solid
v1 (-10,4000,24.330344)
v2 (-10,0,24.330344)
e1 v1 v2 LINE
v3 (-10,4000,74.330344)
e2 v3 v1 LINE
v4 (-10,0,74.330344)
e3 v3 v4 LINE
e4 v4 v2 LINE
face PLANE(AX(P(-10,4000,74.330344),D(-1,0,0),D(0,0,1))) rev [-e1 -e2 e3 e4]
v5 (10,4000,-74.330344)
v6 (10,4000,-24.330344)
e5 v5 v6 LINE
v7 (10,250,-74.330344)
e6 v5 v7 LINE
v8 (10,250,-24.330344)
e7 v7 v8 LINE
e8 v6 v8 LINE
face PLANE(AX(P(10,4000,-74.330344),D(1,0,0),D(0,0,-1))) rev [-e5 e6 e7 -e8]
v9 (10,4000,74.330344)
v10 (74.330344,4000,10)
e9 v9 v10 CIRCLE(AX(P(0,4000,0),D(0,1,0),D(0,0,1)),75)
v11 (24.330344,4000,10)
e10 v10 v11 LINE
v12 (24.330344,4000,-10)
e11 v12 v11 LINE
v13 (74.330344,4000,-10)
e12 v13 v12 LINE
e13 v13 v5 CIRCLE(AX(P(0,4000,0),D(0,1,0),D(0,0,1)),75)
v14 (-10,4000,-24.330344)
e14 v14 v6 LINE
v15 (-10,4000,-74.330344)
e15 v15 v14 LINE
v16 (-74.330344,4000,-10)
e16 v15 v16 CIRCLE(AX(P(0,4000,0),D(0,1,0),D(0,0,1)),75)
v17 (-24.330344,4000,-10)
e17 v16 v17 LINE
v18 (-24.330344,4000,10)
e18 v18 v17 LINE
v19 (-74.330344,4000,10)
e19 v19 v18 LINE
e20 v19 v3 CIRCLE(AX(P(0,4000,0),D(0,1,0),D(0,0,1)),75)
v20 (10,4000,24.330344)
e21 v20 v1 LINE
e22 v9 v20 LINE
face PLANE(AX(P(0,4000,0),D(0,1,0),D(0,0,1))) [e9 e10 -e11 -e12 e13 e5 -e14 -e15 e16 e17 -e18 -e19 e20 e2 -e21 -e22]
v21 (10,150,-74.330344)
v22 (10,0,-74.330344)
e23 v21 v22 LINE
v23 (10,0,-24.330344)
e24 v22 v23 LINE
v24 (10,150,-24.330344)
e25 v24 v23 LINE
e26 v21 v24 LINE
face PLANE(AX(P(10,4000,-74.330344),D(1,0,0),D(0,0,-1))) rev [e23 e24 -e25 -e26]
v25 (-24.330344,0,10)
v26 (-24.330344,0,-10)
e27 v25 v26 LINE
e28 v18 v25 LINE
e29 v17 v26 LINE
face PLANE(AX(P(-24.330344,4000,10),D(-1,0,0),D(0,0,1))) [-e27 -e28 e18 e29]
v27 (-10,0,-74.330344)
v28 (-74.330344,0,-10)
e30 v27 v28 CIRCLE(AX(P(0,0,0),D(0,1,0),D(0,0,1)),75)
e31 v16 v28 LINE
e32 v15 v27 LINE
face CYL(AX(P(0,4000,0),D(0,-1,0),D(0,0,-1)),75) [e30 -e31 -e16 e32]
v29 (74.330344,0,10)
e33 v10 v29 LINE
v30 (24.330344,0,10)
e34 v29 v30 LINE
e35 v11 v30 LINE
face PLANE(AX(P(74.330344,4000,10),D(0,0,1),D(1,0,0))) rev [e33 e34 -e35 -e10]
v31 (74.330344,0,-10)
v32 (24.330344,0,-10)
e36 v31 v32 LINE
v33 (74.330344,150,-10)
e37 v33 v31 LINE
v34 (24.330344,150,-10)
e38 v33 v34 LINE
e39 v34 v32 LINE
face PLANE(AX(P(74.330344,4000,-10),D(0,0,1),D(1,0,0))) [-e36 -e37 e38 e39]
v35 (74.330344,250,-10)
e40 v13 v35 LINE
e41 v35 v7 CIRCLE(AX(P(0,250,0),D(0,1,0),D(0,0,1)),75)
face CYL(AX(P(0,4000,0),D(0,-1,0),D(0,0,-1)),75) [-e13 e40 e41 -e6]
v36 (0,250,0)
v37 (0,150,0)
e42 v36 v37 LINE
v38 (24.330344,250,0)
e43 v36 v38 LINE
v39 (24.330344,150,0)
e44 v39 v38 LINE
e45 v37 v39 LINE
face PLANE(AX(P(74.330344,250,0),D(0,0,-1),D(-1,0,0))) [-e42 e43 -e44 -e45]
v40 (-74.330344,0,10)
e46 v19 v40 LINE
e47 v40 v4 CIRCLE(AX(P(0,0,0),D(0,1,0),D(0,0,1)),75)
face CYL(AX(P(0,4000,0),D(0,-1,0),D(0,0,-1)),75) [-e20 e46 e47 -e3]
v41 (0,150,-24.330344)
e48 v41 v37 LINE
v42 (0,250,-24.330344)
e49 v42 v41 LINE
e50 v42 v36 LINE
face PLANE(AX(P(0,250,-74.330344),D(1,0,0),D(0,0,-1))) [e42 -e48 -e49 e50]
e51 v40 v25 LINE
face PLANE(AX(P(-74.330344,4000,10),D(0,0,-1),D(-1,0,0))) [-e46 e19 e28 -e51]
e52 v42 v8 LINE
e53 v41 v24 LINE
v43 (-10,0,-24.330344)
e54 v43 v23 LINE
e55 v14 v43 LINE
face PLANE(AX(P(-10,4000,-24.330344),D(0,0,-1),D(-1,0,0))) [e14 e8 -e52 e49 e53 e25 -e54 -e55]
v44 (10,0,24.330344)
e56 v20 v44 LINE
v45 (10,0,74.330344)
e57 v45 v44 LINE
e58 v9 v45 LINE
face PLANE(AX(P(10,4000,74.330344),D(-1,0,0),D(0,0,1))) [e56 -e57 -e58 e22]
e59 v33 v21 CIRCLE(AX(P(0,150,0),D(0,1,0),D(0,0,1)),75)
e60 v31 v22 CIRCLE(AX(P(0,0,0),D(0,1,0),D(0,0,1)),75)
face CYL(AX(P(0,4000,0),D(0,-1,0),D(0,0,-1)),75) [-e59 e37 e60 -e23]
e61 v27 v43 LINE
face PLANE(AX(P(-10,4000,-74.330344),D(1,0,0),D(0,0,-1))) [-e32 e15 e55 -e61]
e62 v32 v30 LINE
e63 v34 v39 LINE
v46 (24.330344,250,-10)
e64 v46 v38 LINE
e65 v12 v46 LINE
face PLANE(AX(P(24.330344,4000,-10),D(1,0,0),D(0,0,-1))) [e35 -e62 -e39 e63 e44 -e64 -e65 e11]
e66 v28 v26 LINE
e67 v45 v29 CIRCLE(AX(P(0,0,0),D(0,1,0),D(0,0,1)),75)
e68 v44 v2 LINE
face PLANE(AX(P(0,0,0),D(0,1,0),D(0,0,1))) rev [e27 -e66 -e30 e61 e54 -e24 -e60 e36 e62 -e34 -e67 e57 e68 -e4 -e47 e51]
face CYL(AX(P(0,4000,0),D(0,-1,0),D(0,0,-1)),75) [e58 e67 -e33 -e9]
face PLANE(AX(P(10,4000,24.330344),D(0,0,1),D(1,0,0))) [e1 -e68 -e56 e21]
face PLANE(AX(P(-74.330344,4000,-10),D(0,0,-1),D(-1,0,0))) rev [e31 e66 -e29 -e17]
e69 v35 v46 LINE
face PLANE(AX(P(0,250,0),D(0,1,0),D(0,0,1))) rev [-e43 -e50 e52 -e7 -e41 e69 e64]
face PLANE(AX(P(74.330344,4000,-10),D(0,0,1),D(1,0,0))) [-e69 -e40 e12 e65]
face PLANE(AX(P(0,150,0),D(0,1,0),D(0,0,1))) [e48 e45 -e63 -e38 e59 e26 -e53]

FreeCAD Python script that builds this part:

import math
import FreeCAD as App
import Part
import Sketcher


def add_polygon(sketch, points):
    """Adds a closed chain of lines whose ends are joined by coincident constraints."""
    first, n = sketch.GeometryCount, len(points)
    for a, b in zip(points, points[1:] + points[:1]):
        sketch.addGeometry(Part.LineSegment(App.Vector(*a, 0), App.Vector(*b, 0)), False)
    for i in range(n):
        sketch.addConstraint(Sketcher.Constraint("Coincident", first + i, 2, first + (i + 1) % n, 1))

doc = App.newDocument("Part")
body = doc.addObject("PartDesign::Body", "Body")

# Sketch on XZ plane
sketch1 = body.newObject("Sketcher::SketchObject", "Sketch")
sketch1.AttachmentSupport = (doc.getObject("XZ_Plane"), [""])
sketch1.MapMode = "FlatFace"
sketch1.addGeometry([
    Part.LineSegment(App.Vector(-10, -24, 0), App.Vector(-10, -74, 0)),  # 0
    Part.ArcOfCircle(Part.Circle(App.Vector(0, 0, 0), App.Vector(0, 0, 1), 75), math.radians(-172), math.radians(-98)),  # 1
    Part.LineSegment(App.Vector(-74, -10, 0), App.Vector(-24, -10, 0)),  # 2
    Part.LineSegment(App.Vector(-24, -10, 0), App.Vector(-24, 10, 0)),  # 3
    Part.LineSegment(App.Vector(-24, 10, 0), App.Vector(-74, 10, 0)),  # 4
    Part.ArcOfCircle(Part.Circle(App.Vector(0, 0, 0), App.Vector(0, 0, 1), 75), math.radians(98), math.radians(172)),  # 5
    Part.LineSegment(App.Vector(-10, 74, 0), App.Vector(-10, 24, 0)),  # 6
    Part.LineSegment(App.Vector(-10, 24, 0), App.Vector(10, 24, 0)),  # 7
    Part.LineSegment(App.Vector(10, 24, 0), App.Vector(10, 74, 0)),  # 8
    Part.ArcOfCircle(Part.Circle(App.Vector(0, 0, 0), App.Vector(0, 0, 1), 75), math.radians(8), math.radians(82)),  # 9
    Part.LineSegment(App.Vector(74, 10, 0), App.Vector(24, 10, 0)),  # 10
    Part.LineSegment(App.Vector(24, 10, 0), App.Vector(24, -10, 0)),  # 11
    Part.LineSegment(App.Vector(24, -10, 0), App.Vector(74, -10, 0)),  # 12
    Part.ArcOfCircle(Part.Circle(App.Vector(0, 0, 0), App.Vector(0, 0, 1), 75), math.radians(-82), math.radians(-8)),  # 13
    Part.LineSegment(App.Vector(10, -74, 0), App.Vector(10, -24, 0)),  # 14
    Part.LineSegment(App.Vector(10, -24, 0), App.Vector(-10, -24, 0)),  # 15
], False)
sketch1.addConstraint([
    Sketcher.Constraint("Coincident", 0, 2, 1, 2),
    Sketcher.Constraint("Coincident", 1, 1, 2, 1),
    Sketcher.Constraint("Coincident", 2, 2, 3, 1),
    Sketcher.Constraint("Coincident", 3, 2, 4, 1),
    Sketcher.Constraint("Coincident", 4, 2, 5, 2),
    Sketcher.Constraint("Coincident", 5, 1, 6, 1),
    Sketcher.Constraint("Coincident", 6, 2, 7, 1),
    Sketcher.Constraint("Coincident", 7, 2, 8, 1),
    Sketcher.Constraint("Coincident", 8, 2, 9, 2),
    Sketcher.Constraint("Coincident", 9, 1, 10, 1),
    Sketcher.Constraint("Coincident", 10, 2, 11, 1),
    Sketcher.Constraint("Coincident", 11, 2, 12, 1),
    Sketcher.Constraint("Coincident", 12, 2, 13, 2),
    Sketcher.Constraint("Coincident", 13, 1, 14, 1),
    Sketcher.Constraint("Coincident", 14, 2, 15, 1),
    Sketcher.Constraint("Coincident", 15, 2, 0, 1),
    Sketcher.Constraint("Vertical", 0),
    Sketcher.Constraint("Horizontal", 2),
    Sketcher.Constraint("Vertical", 3),
    Sketcher.Constraint("Horizontal", 4),
    Sketcher.Constraint("Vertical", 6),
    Sketcher.Constraint("Horizontal", 7),
    Sketcher.Constraint("Vertical", 8),
    Sketcher.Constraint("Horizontal", 10),
    Sketcher.Constraint("Vertical", 11),
    Sketcher.Constraint("Horizontal", 12),
    Sketcher.Constraint("Vertical", 14),
    Sketcher.Constraint("Horizontal", 15),
    Sketcher.Constraint("Coincident", 1, 3, -1, 1),
    Sketcher.Constraint("Coincident", 5, 3, -1, 1),
    Sketcher.Constraint("Coincident", 9, 3, -1, 1),
    Sketcher.Constraint("Coincident", 13, 3, -1, 1),
    Sketcher.Constraint("Equal", 1, 5),
    Sketcher.Constraint("Equal", 5, 9),
    Sketcher.Constraint("Equal", 9, 13),
    Sketcher.Constraint("Symmetric", 2, 2, 10, 2, -1, 1),
    Sketcher.Constraint("Symmetric", 6, 2, 14, 2, -1, 1),
    Sketcher.Constraint("Horizontal", 5, 1, 8, 2),
    Sketcher.Constraint("Horizontal", 4, 2, 9, 1),
    Sketcher.Constraint("Horizontal", 2, 2, 11, 2),
    Sketcher.Constraint("Horizontal", 0, 2, 13, 1),
    Sketcher.Constraint("Equal", 12, 0),
    Sketcher.Constraint("Equal", 15, 3),
    Sketcher.Constraint("Radius", 1, 75.0),
    Sketcher.Constraint("DistanceX", 2, 1, 2, 2, 50.0),
    Sketcher.Constraint("DistanceX", 7, 1, 7, 2, 20.0),
])
pad1 = body.newObject("PartDesign::Pad", "Pad")
pad1.Profile = sketch1
pad1.Length = 4000
pad1.Reversed = True

# Sketch on XZ plane
sketch2 = body.newObject("Sketcher::SketchObject", "Sketch001")
sketch2.AttachmentSupport = (doc.getObject("XZ_Plane"), [""])
sketch2.MapMode = "FlatFace"
sketch2.AttachmentOffset = App.Placement(App.Vector(0, 0, -200), App.Rotation())
add_polygon(sketch2, [(0, -74), (0, 0), (74, 0), (74, -74)])  # lines 0-3
sketch2.addConstraint([
    Sketcher.Constraint("Vertical", 0),
    Sketcher.Constraint("Horizontal", 1),
    Sketcher.Constraint("Vertical", 2),
    Sketcher.Constraint("Horizontal", 3),
    Sketcher.Constraint("Coincident", 0, 2, -1, 1),
    Sketcher.Constraint("Equal", 3, 0),
    Sketcher.Constraint("DistanceX", 1, 1, 1, 2, 74.330344),
])
pocket1 = body.newObject("PartDesign::Pocket", "Pocket")
pocket1.Profile = sketch2
pocket1.Length = 100
pocket1.Midplane = True

doc.recompute()
